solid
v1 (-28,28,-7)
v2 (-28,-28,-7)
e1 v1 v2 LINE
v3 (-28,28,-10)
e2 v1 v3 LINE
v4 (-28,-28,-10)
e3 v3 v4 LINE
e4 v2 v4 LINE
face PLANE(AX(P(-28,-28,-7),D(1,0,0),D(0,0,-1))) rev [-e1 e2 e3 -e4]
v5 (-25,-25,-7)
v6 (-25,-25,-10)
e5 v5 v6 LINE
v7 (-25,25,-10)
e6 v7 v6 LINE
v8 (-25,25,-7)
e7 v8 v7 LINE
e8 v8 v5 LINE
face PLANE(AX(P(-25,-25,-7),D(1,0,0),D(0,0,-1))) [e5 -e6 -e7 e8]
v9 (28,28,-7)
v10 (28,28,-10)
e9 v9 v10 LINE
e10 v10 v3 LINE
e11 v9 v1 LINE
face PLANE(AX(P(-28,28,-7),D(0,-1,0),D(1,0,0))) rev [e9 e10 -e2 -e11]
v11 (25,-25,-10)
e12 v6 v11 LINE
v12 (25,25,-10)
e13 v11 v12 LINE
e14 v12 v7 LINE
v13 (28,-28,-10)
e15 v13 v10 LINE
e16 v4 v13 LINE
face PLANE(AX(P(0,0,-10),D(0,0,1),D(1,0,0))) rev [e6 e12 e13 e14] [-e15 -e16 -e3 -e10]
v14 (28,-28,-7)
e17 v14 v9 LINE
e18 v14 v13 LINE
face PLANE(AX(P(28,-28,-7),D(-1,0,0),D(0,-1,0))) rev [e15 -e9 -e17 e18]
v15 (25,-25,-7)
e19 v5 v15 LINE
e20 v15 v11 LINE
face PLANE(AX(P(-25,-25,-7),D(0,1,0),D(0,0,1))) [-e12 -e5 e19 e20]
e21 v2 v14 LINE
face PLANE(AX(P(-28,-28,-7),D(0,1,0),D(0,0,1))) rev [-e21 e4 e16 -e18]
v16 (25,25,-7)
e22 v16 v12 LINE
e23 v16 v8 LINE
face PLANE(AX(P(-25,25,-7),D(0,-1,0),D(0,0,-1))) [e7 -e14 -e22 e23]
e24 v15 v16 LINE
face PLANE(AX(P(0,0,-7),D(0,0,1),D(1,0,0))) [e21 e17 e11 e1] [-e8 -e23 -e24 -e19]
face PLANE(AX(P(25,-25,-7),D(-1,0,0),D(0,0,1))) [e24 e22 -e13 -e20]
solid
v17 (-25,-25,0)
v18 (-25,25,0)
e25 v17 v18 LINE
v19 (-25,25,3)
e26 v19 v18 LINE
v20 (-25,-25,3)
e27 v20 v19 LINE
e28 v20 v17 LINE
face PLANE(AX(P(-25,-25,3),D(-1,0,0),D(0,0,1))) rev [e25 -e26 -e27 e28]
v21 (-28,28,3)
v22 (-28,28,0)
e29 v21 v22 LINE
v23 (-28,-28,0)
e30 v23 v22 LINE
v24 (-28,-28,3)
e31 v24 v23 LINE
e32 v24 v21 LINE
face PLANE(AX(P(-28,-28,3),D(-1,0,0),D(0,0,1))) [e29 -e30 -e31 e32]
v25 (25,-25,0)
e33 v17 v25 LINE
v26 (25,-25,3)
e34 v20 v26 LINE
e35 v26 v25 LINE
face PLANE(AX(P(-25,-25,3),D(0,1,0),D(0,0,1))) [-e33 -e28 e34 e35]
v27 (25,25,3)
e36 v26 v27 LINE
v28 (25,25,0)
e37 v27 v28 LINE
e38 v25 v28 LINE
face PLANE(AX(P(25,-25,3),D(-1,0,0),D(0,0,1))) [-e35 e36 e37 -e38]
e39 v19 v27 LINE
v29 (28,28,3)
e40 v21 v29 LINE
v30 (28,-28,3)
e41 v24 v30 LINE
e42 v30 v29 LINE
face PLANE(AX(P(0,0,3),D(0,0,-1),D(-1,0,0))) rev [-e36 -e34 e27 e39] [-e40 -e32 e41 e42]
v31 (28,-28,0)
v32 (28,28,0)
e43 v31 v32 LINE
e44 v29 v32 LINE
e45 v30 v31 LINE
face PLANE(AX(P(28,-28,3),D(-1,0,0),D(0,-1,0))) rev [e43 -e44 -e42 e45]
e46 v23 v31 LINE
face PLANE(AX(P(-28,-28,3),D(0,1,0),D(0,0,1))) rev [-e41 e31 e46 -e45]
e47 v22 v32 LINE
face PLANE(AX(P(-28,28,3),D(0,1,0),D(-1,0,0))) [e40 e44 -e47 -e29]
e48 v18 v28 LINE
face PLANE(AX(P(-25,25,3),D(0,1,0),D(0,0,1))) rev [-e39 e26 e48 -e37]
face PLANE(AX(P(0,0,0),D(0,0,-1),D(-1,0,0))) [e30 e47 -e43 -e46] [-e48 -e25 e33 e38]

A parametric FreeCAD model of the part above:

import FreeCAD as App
import Part
import Sketcher


def add_polygon(sketch, points):
    """Adds a closed chain of lines whose ends are joined by coincident constraints."""
    first, n = sketch.GeometryCount, len(points)
    for a, b in zip(points, points[1:] + points[:1]):
        sketch.addGeometry(Part.LineSegment(App.Vector(*a, 0), App.Vector(*b, 0)), False)
    for i in range(n):
        sketch.addConstraint(Sketcher.Constraint("Coincident", first + i, 2, first + (i + 1) % n, 1))

doc = App.newDocument("Part")
body = doc.addObject("PartDesign::Body", "Body")

# Sketch on XY plane
sketch1 = body.newObject("Sketcher::SketchObject", "Sketch")
sketch1.AttachmentSupport = (doc.getObject("XY_Plane"), [""])
sketch1.MapMode = "FlatFace"
add_polygon(sketch1, [(-28, 28), (-28, -28), (28, -28), (28, 28)])  # lines 0-3
add_polygon(sketch1, [(25, -25), (-25, -25), (-25, 25), (25, 25)])  # lines 4-7
sketch1.addConstraint([
    Sketcher.Constraint("Vertical", 0),
    Sketcher.Constraint("Horizontal", 1),
    Sketcher.Constraint("Vertical", 2),
    Sketcher.Constraint("Horizontal", 3),
    Sketcher.Constraint("Horizontal", 4),
    Sketcher.Constraint("Vertical", 5),
    Sketcher.Constraint("Horizontal", 6),
    Sketcher.Constraint("Vertical", 7),
    Sketcher.Constraint("Symmetric", 0, 2, 2, 2, -1, 1),
    Sketcher.Constraint("Symmetric", 4, 2, 6, 2, -1, 1),
    Sketcher.Constraint("Equal", 3, 0),
    Sketcher.Constraint("Equal", 6, 5),
    Sketcher.Constraint("DistanceX", 1, 1, 1, 2, 56.0),
    Sketcher.Constraint("DistanceX", 4, 2, 4, 1, 50.0),
])
pad1 = body.newObject("PartDesign::Pad", "Pad")
pad1.Profile = sketch1
pad1.Length = 3
body2 = doc.addObject("PartDesign::Body", "Body001")

# Sketch on XY plane
sketch2 = body2.newObject("Sketcher::SketchObject", "Sketch001")
sketch2.AttachmentSupport = (doc.getObject("XY_Plane001"), [""])
sketch2.MapMode = "FlatFace"
sketch2.AttachmentOffset = App.Placement(App.Vector(0, 0, -10), App.Rotation())
add_polygon(sketch2, [(-28, 28), (-28, -28), (28, -28), (28, 28)])  # lines 0-3
add_polygon(sketch2, [(25, -25), (-25, -25), (-25, 25), (25, 25)])  # lines 4-7
sketch2.addConstraint([
    Sketcher.Constraint("Vertical", 0),
    Sketcher.Constraint("Horizontal", 1),
    Sketcher.Constraint("Vertical", 2),
    Sketcher.Constraint("Horizontal", 3),
    Sketcher.Constraint("Horizontal", 4),
    Sketcher.Constraint("Vertical", 5),
    Sketcher.Constraint("Horizontal", 6),
    Sketcher.Constraint("Vertical", 7),
    Sketcher.Constraint("Symmetric", 0, 2, 2, 2, -1, 1),
    Sketcher.Constraint("Symmetric", 4, 2, 6, 2, -1, 1),
    Sketcher.Constraint("Equal", 3, 0),
    Sketcher.Constraint("Equal", 6, 5),
    Sketcher.Constraint("DistanceX", 1, 1, 1, 2, 56.0),
    Sketcher.Constraint("DistanceX", 4, 2, 4, 1, 50.0),
])
pad2 = body2.newObject("PartDesign::Pad", "Pad001")
pad2.Profile = sketch2
pad2.Length = 3

doc.recompute()
